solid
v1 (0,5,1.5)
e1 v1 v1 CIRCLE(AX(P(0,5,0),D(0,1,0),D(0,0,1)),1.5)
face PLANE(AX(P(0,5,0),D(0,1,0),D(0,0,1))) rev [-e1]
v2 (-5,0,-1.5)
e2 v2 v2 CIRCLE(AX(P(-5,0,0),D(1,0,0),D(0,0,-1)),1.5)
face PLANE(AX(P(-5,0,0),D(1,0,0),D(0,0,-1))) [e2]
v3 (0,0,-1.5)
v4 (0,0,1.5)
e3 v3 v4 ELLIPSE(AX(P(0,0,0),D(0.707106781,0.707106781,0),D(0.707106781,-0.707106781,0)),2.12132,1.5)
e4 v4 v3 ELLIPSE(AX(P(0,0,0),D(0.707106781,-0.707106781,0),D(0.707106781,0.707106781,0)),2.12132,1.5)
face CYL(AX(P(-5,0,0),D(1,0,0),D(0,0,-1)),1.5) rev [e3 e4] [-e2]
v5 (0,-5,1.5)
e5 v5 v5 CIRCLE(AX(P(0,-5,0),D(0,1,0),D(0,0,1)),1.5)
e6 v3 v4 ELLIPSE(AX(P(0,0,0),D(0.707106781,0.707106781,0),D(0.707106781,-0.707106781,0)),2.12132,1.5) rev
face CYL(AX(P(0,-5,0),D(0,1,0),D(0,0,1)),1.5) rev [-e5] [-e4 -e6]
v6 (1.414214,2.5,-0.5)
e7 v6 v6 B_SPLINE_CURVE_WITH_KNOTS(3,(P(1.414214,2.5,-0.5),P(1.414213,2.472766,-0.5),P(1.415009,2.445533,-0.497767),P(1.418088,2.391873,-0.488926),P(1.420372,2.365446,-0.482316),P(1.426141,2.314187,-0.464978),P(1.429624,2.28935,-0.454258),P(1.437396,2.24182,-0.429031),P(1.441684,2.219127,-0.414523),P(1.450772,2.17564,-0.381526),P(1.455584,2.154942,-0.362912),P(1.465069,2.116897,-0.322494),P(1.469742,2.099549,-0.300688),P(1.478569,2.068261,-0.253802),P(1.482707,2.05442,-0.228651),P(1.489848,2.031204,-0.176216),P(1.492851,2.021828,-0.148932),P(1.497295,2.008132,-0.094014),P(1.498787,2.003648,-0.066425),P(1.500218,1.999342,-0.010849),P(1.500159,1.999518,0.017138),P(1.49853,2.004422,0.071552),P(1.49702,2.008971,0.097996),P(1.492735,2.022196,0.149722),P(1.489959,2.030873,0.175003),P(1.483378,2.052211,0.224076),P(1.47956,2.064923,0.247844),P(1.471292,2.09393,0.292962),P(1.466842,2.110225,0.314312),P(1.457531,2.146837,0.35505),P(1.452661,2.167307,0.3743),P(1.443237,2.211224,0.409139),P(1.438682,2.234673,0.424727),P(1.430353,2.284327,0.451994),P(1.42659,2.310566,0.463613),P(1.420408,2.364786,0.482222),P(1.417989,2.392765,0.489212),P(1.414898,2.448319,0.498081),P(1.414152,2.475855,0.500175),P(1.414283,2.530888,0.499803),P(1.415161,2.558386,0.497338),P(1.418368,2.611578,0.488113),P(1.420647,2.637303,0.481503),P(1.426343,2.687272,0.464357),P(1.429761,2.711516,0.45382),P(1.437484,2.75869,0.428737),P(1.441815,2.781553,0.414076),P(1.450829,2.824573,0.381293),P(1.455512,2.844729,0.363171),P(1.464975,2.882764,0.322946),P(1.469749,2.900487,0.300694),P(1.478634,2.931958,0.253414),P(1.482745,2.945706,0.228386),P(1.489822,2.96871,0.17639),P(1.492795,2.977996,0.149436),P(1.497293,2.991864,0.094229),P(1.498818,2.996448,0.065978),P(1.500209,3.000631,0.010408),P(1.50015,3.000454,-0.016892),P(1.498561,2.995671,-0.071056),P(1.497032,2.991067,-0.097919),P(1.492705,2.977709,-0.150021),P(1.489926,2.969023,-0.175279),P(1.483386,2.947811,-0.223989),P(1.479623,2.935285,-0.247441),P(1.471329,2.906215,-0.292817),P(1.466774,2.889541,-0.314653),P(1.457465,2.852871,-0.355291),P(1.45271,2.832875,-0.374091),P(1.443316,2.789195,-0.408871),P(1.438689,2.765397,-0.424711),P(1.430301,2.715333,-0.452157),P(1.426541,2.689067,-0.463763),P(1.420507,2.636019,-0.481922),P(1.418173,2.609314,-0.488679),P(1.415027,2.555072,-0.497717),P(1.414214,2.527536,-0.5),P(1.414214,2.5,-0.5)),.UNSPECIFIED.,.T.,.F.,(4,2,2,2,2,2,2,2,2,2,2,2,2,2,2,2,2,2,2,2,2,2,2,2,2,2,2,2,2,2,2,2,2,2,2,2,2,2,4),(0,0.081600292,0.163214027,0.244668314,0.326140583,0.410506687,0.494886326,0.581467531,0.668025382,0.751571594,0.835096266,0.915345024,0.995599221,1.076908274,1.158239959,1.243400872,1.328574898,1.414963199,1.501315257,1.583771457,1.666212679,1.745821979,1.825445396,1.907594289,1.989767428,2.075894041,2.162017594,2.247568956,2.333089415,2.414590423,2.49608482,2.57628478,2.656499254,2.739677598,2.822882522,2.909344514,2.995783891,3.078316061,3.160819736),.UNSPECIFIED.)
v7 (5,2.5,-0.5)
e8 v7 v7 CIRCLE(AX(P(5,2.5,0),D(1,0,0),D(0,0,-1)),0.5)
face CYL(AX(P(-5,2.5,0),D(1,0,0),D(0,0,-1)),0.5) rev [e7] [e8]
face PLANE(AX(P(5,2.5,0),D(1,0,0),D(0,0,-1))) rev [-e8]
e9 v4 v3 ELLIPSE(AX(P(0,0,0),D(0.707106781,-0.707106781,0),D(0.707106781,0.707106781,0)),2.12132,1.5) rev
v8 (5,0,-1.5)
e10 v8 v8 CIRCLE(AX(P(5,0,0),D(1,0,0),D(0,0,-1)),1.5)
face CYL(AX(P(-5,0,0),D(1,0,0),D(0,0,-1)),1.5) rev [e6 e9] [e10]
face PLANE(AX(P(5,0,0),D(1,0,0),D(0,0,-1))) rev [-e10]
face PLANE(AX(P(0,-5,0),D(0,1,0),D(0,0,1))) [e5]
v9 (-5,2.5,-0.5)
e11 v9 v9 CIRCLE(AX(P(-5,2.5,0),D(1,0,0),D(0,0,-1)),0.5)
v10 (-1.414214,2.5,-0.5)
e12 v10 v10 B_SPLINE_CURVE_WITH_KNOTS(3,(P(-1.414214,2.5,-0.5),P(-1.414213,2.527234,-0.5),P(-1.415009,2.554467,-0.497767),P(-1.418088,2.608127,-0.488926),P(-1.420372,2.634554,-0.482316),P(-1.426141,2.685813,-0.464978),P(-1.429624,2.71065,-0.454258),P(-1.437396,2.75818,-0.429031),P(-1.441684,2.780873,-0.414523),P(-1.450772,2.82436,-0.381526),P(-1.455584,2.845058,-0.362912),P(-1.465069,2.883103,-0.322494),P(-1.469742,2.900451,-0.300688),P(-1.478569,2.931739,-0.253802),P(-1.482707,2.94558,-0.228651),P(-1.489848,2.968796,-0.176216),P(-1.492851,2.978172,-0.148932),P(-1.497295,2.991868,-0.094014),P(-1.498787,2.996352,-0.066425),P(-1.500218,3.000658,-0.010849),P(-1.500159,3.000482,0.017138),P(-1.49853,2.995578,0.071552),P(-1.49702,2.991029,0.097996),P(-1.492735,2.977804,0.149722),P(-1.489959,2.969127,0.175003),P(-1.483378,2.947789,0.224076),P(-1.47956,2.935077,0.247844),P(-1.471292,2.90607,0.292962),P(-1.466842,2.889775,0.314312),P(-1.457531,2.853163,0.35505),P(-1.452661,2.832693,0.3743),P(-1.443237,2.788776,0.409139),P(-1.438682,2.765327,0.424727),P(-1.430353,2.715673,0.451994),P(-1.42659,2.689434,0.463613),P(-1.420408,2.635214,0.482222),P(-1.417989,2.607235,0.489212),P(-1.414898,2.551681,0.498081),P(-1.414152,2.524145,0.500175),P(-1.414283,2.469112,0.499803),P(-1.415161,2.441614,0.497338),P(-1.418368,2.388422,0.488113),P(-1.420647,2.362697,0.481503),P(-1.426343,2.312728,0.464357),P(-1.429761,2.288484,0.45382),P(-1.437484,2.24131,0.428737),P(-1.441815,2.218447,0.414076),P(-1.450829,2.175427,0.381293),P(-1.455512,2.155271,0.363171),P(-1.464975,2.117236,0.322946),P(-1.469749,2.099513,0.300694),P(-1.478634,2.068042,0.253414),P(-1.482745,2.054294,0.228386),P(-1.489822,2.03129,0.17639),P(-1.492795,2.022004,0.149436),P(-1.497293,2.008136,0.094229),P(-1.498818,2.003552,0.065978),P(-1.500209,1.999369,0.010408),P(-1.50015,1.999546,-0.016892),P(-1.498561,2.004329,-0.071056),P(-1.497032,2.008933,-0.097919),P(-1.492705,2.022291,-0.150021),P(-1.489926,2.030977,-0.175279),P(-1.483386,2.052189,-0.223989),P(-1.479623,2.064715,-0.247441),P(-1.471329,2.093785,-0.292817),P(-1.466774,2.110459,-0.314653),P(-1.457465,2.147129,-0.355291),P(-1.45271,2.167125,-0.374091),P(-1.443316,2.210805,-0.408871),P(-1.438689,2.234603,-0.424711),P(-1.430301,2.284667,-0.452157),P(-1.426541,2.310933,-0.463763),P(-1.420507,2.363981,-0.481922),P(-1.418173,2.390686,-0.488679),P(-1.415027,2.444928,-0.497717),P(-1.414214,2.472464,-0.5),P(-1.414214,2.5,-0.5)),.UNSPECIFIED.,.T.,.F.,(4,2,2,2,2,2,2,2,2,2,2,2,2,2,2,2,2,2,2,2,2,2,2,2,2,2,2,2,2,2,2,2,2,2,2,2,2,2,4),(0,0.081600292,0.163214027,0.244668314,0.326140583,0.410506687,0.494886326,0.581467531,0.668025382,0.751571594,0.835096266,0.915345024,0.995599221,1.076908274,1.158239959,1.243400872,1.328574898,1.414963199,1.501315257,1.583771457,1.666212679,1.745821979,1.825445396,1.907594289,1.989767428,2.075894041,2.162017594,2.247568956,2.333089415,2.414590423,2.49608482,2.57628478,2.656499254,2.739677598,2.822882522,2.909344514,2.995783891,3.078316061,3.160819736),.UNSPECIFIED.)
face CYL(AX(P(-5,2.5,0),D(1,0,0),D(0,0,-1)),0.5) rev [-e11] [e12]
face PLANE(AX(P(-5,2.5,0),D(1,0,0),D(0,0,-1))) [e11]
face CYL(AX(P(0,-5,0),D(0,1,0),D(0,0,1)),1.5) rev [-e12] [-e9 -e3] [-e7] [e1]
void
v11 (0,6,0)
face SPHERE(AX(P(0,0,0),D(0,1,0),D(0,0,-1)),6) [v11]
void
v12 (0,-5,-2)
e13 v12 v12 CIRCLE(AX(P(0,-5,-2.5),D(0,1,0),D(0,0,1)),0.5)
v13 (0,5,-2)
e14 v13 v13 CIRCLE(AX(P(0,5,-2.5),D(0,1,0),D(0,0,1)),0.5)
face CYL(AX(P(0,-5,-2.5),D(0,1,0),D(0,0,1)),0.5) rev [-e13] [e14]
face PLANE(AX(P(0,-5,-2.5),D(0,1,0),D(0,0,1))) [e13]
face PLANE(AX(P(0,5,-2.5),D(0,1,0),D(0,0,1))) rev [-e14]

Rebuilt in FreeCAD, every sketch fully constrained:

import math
import FreeCAD as App
import Part
import Sketcher

V = App.Vector

doc = App.newDocument("Part")
body = doc.addObject("PartDesign::Body", "Body")

# Sketch on YZ plane
sketch1 = doc.addObject("Sketcher::SketchObject", "Sketch")
body.addObject(sketch1)
sketch1.AttachmentSupport = (doc.YZ_Plane, [""])
sketch1.MapMode = "FlatFace"
sketch1.addGeometry(Part.LineSegment(V(6, 0, 0), V(-6, 0, 0)), False)
sketch1.addGeometry(Part.ArcOfCircle(Part.Circle(V(0, 0, 0), V(0, 0, 1), 6), math.radians(180), math.radians(360)), False)
sketch1.addConstraint(Sketcher.Constraint("Coincident", 0, 1, 1, 2))
sketch1.addConstraint(Sketcher.Constraint("Coincident", 1, 1, 0, 2))
sketch1.addConstraint(Sketcher.Constraint("Horizontal", 0))
sketch1.addConstraint(Sketcher.Constraint("Coincident", 1, 3, -1, 1))
sketch1.addConstraint(Sketcher.Constraint("PointOnObject", 0, 1, -1))
sketch1.addConstraint(Sketcher.Constraint("Radius", 1, 6.0))
revolution = doc.addObject("PartDesign::Revolution", "Revolution")
body.addObject(revolution)
revolution.Profile = sketch1
revolution.ReferenceAxis = (sketch1, ["H_Axis"])
revolution.Angle = 360

# Sketch on YZ plane
sketch2 = doc.addObject("Sketcher::SketchObject", "Sketch001")
body.addObject(sketch2)
sketch2.AttachmentSupport = (doc.YZ_Plane, [""])
sketch2.MapMode = "FlatFace"
sketch2.addGeometry(Part.Circle(V(0, 0, 0), V(0, 0, 1), 1.5), False)
sketch2.addGeometry(Part.Circle(V(2.5, 0, 0), V(0, 0, 1), 0.5), False)
sketch2.addConstraint(Sketcher.Constraint("Coincident", 0, 3, -1, 1))
sketch2.addConstraint(Sketcher.Constraint("PointOnObject", 1, 3, -1))
sketch2.addConstraint(Sketcher.Constraint("Diameter", 0, 3.0))
sketch2.addConstraint(Sketcher.Constraint("Diameter", 1, 1.0))
sketch2.addConstraint(Sketcher.Constraint("DistanceX", -1, 1, 1, 3, 2.5))
pocket1 = doc.addObject("PartDesign::Pocket", "Pocket")
body.addObject(pocket1)
pocket1.Profile = sketch2
pocket1.Length = 10
pocket1.Midplane = True

# Sketch on XZ plane
sketch3 = doc.addObject("Sketcher::SketchObject", "Sketch002")
body.addObject(sketch3)
sketch3.AttachmentSupport = (doc.XZ_Plane, [""])
sketch3.MapMode = "FlatFace"
sketch3.addGeometry(Part.Circle(V(0, 0, 0), V(0, 0, 1), 1.5), False)
sketch3.addGeometry(Part.Circle(V(0, -2.5, 0), V(0, 0, 1), 0.5), False)
sketch3.addConstraint(Sketcher.Constraint("Coincident", 0, 3, -1, 1))
sketch3.addConstraint(Sketcher.Constraint("PointOnObject", 1, 3, -2))
sketch3.addConstraint(Sketcher.Constraint("Diameter", 0, 3.0))
sketch3.addConstraint(Sketcher.Constraint("Diameter", 1, 1.0))
sketch3.addConstraint(Sketcher.Constraint("DistanceY", 1, 3, -1, 1, 2.5))
pocket2 = doc.addObject("PartDesign::Pocket", "Pocket001")
body.addObject(pocket2)
pocket2.Profile = sketch3
pocket2.Length = 10
pocket2.Midplane = True

doc.recompute()
